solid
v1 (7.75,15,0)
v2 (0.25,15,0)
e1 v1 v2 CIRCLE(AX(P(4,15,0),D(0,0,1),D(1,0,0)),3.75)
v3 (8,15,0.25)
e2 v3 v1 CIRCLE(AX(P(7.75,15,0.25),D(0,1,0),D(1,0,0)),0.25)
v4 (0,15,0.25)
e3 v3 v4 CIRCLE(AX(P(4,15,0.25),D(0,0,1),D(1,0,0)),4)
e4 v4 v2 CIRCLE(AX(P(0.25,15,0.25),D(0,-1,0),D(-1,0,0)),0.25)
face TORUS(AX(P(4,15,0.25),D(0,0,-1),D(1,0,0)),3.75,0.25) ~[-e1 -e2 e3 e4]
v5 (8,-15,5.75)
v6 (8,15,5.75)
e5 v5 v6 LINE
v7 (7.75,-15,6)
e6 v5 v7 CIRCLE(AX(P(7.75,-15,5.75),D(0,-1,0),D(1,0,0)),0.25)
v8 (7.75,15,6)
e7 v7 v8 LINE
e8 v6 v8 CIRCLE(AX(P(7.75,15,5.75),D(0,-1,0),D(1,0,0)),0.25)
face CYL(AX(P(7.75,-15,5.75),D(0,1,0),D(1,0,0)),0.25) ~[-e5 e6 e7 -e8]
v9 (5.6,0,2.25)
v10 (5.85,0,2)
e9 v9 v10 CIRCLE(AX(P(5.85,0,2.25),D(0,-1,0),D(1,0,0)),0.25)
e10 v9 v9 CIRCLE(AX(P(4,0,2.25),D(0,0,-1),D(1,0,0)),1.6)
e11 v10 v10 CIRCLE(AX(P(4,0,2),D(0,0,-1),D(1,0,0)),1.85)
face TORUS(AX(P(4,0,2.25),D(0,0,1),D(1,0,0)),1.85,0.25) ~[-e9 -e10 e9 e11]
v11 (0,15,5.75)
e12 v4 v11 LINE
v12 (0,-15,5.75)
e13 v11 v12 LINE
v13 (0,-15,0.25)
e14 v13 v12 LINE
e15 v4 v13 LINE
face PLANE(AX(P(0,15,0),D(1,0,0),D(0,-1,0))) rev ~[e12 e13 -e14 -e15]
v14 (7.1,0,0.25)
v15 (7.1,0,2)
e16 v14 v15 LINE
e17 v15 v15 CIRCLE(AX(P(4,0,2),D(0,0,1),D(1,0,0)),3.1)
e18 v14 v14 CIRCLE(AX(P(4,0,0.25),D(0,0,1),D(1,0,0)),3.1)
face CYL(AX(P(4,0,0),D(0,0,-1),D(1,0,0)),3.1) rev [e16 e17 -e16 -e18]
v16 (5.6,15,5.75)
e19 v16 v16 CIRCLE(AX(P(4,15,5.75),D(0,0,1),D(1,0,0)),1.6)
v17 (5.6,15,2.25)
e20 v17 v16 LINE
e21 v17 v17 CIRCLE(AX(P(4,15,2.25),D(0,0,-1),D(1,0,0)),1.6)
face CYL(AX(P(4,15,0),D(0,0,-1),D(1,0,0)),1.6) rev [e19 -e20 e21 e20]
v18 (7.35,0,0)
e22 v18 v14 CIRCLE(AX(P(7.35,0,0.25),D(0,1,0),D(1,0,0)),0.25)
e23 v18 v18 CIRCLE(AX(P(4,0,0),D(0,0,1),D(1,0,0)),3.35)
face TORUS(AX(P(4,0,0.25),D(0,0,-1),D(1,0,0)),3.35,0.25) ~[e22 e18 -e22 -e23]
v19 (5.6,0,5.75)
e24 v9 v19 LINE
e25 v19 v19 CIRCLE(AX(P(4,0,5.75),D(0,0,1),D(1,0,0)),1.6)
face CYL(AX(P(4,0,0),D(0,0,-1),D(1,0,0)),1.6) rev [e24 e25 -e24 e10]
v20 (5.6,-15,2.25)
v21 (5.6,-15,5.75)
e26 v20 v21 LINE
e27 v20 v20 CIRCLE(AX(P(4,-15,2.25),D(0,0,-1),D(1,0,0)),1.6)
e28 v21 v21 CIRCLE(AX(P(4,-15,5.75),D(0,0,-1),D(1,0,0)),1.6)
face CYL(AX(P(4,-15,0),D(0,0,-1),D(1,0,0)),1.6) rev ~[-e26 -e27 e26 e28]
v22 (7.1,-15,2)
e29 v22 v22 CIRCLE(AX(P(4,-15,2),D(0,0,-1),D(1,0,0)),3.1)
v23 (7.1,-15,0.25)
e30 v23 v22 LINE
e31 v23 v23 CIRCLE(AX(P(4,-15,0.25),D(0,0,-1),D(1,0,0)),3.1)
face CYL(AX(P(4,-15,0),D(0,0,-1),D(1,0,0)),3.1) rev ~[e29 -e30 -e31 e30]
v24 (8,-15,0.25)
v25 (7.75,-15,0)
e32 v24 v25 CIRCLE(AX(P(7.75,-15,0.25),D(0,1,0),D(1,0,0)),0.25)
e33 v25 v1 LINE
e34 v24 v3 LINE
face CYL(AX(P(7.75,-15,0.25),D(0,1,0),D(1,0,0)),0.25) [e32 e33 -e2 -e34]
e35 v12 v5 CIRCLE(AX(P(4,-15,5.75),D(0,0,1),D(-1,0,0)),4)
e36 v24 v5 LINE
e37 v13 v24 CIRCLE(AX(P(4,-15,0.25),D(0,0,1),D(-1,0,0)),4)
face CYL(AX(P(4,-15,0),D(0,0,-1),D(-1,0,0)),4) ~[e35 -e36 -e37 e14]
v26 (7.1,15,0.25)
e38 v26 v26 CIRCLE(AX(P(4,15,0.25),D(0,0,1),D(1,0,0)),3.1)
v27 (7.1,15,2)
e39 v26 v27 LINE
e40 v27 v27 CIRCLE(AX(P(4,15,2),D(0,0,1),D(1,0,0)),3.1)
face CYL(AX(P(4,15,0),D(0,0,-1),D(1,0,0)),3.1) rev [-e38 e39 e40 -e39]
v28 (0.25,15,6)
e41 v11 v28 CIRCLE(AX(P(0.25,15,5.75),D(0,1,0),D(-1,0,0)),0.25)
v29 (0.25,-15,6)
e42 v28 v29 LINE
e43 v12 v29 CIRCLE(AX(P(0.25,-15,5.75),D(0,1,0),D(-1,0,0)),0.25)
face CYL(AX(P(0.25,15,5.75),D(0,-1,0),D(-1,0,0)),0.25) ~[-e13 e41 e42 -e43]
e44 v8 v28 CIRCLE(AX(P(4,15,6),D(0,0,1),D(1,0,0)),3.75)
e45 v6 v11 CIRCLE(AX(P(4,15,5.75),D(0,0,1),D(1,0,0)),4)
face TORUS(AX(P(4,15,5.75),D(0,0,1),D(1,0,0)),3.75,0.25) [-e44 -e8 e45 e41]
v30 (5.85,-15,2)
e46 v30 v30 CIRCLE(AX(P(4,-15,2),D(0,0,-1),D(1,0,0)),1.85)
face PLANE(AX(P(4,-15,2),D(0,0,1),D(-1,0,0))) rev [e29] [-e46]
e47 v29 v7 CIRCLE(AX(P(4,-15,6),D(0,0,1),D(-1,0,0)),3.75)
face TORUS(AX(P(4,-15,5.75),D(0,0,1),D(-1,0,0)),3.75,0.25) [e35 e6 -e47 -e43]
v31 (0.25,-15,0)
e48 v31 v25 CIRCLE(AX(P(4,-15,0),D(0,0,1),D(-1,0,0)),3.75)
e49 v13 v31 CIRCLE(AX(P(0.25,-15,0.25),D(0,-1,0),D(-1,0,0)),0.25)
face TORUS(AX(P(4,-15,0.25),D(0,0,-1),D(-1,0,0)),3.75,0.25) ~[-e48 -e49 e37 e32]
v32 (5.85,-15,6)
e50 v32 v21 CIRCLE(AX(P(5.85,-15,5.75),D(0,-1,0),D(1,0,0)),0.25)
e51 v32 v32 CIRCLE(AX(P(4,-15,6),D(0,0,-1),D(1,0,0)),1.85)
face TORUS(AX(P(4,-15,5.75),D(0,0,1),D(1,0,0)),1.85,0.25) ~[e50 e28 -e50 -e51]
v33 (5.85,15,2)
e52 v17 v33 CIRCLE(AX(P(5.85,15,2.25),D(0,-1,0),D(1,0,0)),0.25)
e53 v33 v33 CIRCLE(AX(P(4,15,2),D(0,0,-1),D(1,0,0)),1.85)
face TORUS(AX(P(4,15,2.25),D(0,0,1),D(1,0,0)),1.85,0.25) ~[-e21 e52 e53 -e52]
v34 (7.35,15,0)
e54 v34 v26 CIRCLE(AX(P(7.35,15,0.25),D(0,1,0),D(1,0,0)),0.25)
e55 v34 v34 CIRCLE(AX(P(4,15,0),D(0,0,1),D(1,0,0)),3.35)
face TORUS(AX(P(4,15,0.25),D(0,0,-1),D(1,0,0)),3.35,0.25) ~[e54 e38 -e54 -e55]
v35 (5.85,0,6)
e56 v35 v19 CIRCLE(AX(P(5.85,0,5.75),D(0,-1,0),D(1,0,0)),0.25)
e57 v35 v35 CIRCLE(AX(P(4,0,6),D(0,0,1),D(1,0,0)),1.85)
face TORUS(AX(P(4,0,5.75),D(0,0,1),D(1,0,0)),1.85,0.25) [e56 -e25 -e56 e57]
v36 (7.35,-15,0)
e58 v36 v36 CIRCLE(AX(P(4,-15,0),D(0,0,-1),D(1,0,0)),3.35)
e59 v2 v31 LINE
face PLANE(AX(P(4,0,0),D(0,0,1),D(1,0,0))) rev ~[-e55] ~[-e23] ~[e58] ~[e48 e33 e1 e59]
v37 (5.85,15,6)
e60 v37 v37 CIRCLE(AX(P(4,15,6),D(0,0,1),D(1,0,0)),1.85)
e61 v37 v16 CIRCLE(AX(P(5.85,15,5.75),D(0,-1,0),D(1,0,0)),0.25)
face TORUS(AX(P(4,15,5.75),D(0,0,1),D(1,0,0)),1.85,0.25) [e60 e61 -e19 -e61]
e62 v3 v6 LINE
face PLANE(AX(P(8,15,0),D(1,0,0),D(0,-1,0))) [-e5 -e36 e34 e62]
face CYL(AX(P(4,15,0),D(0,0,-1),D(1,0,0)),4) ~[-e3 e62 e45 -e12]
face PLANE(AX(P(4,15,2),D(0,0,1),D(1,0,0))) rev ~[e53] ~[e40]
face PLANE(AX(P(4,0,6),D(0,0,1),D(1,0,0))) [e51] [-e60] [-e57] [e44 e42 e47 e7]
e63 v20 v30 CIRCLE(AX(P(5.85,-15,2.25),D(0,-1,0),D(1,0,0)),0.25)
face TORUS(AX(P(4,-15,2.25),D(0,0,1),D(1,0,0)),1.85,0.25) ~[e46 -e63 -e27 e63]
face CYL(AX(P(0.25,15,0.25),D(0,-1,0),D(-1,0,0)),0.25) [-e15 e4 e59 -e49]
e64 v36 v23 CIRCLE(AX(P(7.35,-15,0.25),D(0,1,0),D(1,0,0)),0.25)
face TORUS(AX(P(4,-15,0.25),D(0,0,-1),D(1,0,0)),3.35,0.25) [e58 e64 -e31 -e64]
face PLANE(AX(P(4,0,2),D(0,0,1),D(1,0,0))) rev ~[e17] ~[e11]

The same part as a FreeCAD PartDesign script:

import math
import FreeCAD as App
import Part
import Sketcher

V = App.Vector


def edges_at(feature, points):
    """Names of the edges that pass closest to the given points."""
    edges = feature.Shape.Edges
    near = lambda p: min(range(len(edges)), key=lambda i: edges[i].distToShape(Part.Vertex(*p))[0])
    return sorted({f"Edge{near(p) + 1}" for p in points})

doc = App.newDocument("Part")
body = doc.addObject("PartDesign::Body", "Body")

# Sketch on XY plane
sketch1 = body.newObject("Sketcher::SketchObject", "Sketch")
sketch1.AttachmentSupport = (doc.getObject("XY_Plane"), [""])
sketch1.MapMode = "FlatFace"
sketch1.addGeometry([
    Part.LineSegment(V(0, 15, 0), V(0, -15, 0)),
    Part.ArcOfCircle(Part.Circle(V(4, -15, 0), V(0, 0, 1), 4), math.radians(180), math.radians(360)),
    Part.LineSegment(V(8, -15, 0), V(8, 15, 0)),
    Part.ArcOfCircle(Part.Circle(V(4, 15, 0), V(0, 0, 1), 4), math.radians(0), math.radians(180)),
], False)
sketch1.addConstraint([
    Sketcher.Constraint("Tangent", 0, 2, 1, 1),
    Sketcher.Constraint("Tangent", 1, 2, 2, 1),
    Sketcher.Constraint("Tangent", 2, 2, 3, 1),
    Sketcher.Constraint("Tangent", 3, 2, 0, 1),
    Sketcher.Constraint("Vertical", 0),
    Sketcher.Constraint("Vertical", 2),
    Sketcher.Constraint("Symmetric", 0, 2, 3, 2, -1, 1),
    Sketcher.Constraint("Radius", 1, 4.0),
    Sketcher.Constraint("DistanceY", 0, 2, 0, 1, 30.0),
])
pad1 = body.newObject("PartDesign::Pad", "Pad")
pad1.Profile = sketch1
pad1.Length = 6

# Sketch on XY plane
sketch2 = body.newObject("Sketcher::SketchObject", "Sketch001")
sketch2.AttachmentSupport = (doc.getObject("XY_Plane"), [""])
sketch2.MapMode = "FlatFace"
sketch2.addGeometry(Part.Circle(V(4, 0, 0), V(0, 0, 1), 1.6), False)
sketch2.addConstraint([
    Sketcher.Constraint("PointOnObject", 0, 3, -1),
    Sketcher.Constraint("Diameter", 0, 3.2),
    Sketcher.Constraint("DistanceX", -1, 1, 0, 3, 4.0),
])
pocket1 = body.newObject("PartDesign::Pocket", "Pocket")
pocket1.Profile = sketch2
pocket1.Length = 6
pocket1.Reversed = True

# Sketch on XY plane
sketch3 = body.newObject("Sketcher::SketchObject", "Sketch002")
sketch3.AttachmentSupport = (doc.getObject("XY_Plane"), [""])
sketch3.MapMode = "FlatFace"
sketch3.addGeometry(Part.Circle(V(4, 0, 0), V(0, 0, 1), 3.1), False)
sketch3.addConstraint([
    Sketcher.Constraint("PointOnObject", 0, 3, -1),
    Sketcher.Constraint("Diameter", 0, 6.2),
    Sketcher.Constraint("DistanceX", -1, 1, 0, 3, 4.0),
])
pocket2 = body.newObject("PartDesign::Pocket", "Pocket001")
pocket2.Profile = sketch3
pocket2.Length = 2
pocket2.Reversed = True

# Sketch on XY plane
sketch4 = body.newObject("Sketcher::SketchObject", "Sketch003")
sketch4.AttachmentSupport = (doc.getObject("XY_Plane"), [""])
sketch4.MapMode = "FlatFace"
sketch4.addGeometry(Part.Circle(V(4, 15, 0), V(0, 0, 1), 1.6), False)
sketch4.addConstraint([
    Sketcher.Constraint("Diameter", 0, 3.2),
    Sketcher.Constraint("DistanceX", -1, 1, 0, 3, 4.0),
    Sketcher.Constraint("DistanceY", -1, 1, 0, 3, 15.0),
])
pocket3 = body.newObject("PartDesign::Pocket", "Pocket002")
pocket3.Profile = sketch4
pocket3.Length = 6
pocket3.Reversed = True
doc.recompute()

mirrored = body.newObject("PartDesign::Mirrored", "Mirrored")
mirrored.Originals = [pocket1, pocket3]
mirrored.MirrorPlane = (doc.getObject("XZ_Plane"), [""])
body.Tip = mirrored

# Sketch on XY plane
sketch5 = body.newObject("Sketcher::SketchObject", "Sketch004")
sketch5.AttachmentSupport = (doc.getObject("XY_Plane"), [""])
sketch5.MapMode = "FlatFace"
sketch5.addGeometry(Part.Circle(V(4, 15, 0), V(0, 0, 1), 3.1), False)
sketch5.addConstraint([
    Sketcher.Constraint("Diameter", 0, 6.2),
    Sketcher.Constraint("DistanceX", -1, 1, 0, 3, 4.0),
    Sketcher.Constraint("DistanceY", -1, 1, 0, 3, 15.0),
])
pocket4 = body.newObject("PartDesign::Pocket", "Pocket003")
pocket4.Profile = sketch5
pocket4.Length = 2
pocket4.Reversed = True
doc.recompute()

mirrored2 = body.newObject("PartDesign::Mirrored", "Mirrored001")
mirrored2.Originals = [pocket2, pocket4]
mirrored2.MirrorPlane = (doc.getObject("XZ_Plane"), [""])
body.Tip = mirrored2
doc.recompute()

fillet = body.newObject("PartDesign::Fillet", "Fillet")
fillet.Base = (mirrored2, edges_at(mirrored2, [
    (4, 19, 0),
    (0, 0, 0),
    (8, 0, 0),
    (4, -19, 0),
    (4, -19, 6),
    (0, 0, 6),
    (4, 19, 6),
    (8, 0, 6),
    (2.4, 15, 6),
    (2.4, 0, 6),
    (2.4, -15, 6),
    (2.4, -15, 2),
    (0.9, -15, 0),
    (0.9, 0, 0),
    (2.4, 0, 2),
    (0.9, 15, 0),
    (2.4, 15, 2),
]))
fillet.Radius = 0.25

doc.recompute()
